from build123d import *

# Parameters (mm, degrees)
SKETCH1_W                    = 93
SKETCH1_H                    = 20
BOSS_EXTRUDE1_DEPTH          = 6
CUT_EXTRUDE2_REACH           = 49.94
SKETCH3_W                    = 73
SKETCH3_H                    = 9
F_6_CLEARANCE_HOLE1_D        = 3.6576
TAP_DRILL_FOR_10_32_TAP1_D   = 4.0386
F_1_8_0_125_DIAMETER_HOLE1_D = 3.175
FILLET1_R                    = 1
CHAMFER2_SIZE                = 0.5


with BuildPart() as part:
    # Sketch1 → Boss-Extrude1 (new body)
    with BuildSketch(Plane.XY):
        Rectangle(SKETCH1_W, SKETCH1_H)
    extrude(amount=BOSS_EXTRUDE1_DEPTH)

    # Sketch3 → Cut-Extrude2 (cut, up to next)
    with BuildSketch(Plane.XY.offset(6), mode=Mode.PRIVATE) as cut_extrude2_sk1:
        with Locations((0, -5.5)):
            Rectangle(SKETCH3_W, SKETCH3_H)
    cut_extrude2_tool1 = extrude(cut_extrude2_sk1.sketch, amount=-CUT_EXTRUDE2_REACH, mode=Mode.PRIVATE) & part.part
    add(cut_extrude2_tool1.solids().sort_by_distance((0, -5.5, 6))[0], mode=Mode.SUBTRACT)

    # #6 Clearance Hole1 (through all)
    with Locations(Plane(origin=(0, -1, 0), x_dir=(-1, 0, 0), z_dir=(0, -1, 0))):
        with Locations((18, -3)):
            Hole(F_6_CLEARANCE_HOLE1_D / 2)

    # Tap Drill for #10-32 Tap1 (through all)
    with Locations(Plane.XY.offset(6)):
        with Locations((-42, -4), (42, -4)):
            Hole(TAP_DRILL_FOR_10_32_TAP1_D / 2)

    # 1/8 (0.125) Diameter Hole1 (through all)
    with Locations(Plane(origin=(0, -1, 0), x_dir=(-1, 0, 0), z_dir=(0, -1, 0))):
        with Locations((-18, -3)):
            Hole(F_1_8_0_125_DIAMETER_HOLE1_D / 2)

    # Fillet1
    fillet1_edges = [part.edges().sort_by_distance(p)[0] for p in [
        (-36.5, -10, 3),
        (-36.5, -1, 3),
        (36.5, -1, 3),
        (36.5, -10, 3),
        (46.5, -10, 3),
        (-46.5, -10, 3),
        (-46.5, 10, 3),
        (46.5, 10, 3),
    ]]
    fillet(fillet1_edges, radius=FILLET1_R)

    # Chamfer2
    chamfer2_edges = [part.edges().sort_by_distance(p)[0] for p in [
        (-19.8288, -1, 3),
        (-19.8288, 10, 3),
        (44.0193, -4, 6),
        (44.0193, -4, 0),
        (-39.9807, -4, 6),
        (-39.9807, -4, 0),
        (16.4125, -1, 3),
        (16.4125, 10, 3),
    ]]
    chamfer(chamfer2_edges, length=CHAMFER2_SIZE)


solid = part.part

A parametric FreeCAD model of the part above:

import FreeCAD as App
import Part
import Sketcher
Q = App.Units.Quantity


def edges_at(feature, points):
    """Names of the edges that pass closest to the given points."""
    edges = feature.Shape.Edges
    near = lambda p: min(range(len(edges)), key=lambda i: edges[i].distToShape(Part.Vertex(*p))[0])
    return sorted({f"Edge{near(p) + 1}" for p in points})


def add_polygon(sketch, points):
    """Adds a closed chain of lines whose ends are joined by coincident constraints."""
    first, n = sketch.GeometryCount, len(points)
    for a, b in zip(points, points[1:] + points[:1]):
        sketch.addGeometry(Part.LineSegment(App.Vector(*a, 0), App.Vector(*b, 0)), False)
    for i in range(n):
        sketch.addConstraint(Sketcher.Constraint("Coincident", first + i, 2, first + (i + 1) % n, 1))

doc = App.newDocument("Part")
params = doc.addObject("Spreadsheet::Sheet", "Params")
for row, (alias, value) in enumerate([
    ("sketch1_width", "93 mm"),
    ("sketch1_height", "20 mm"),
    ("pad1_length", "6 mm"),
    ("sketch2_width", "73 mm"),
    ("sketch2_height", "9 mm"),
    ("hole_diameter", "3.6576 mm"),
    ("hole2_diameter", "4.0386 mm"),
    ("hole3_diameter", "3.175 mm"),
    ("fillet_radius", "1 mm"),
    ("chamfer_size", "0.5 mm"),
], start=1):
    params.set(f"A{row}", alias)
    params.set(f"B{row}", "=" + value)
    params.setAlias(f"B{row}", alias)

body = doc.addObject("PartDesign::Body", "Body")

sketch1 = body.newObject("Sketcher::SketchObject", "Sketch")
sketch1.AttachmentSupport = (doc.getObject("XY_Plane"), [""])
sketch1.MapMode = "FlatFace"
add_polygon(sketch1, [(-46.5, 10), (-46.5, -10), (46.5, -10), (46.5, 10)])
sketch1.addConstraint(Sketcher.Constraint("Vertical", 0))
sketch1.addConstraint(Sketcher.Constraint("Horizontal", 1))
sketch1.addConstraint(Sketcher.Constraint("Vertical", 2))
sketch1.addConstraint(Sketcher.Constraint("Horizontal", 3))
sketch1.addConstraint(Sketcher.Constraint("Symmetric", 0, 2, 2, 2, -1, 1))
sketch1.addConstraint(Sketcher.Constraint("DistanceX", 1, 1, 1, 2, Q("93 mm")))
sketch1.addConstraint(Sketcher.Constraint("DistanceY", 0, 2, 0, 1, Q("20 mm")))
sketch1.setExpression("Constraints[9]", "Params.sketch1_width")
sketch1.setExpression("Constraints[10]", "Params.sketch1_height")
pad1 = body.newObject("PartDesign::Pad", "Pad")
pad1.Profile = sketch1
pad1.setExpression("Length", "Params.pad1_length")

sketch2 = body.newObject("Sketcher::SketchObject", "Sketch001")
sketch2.AttachmentSupport = (doc.getObject("XY_Plane"), [""])
sketch2.MapMode = "FlatFace"
sketch2.AttachmentOffset = App.Placement(App.Vector(0, 0, 6), App.Rotation())
add_polygon(sketch2, [(-36.5, -1), (-36.5, -10), (36.5, -10), (36.5, -1)])
sketch2.addConstraint(Sketcher.Constraint("Vertical", 0))
sketch2.addConstraint(Sketcher.Constraint("Horizontal", 1))
sketch2.addConstraint(Sketcher.Constraint("Vertical", 2))
sketch2.addConstraint(Sketcher.Constraint("Horizontal", 3))
sketch2.addConstraint(Sketcher.Constraint("DistanceX", 1, 1, 1, 2, Q("73 mm")))
sketch2.addConstraint(Sketcher.Constraint("DistanceY", 0, 2, 0, 1, Q("9 mm")))
sketch2.addConstraint(Sketcher.Constraint("DistanceY", 0, 2, -1, 1, Q("10 mm")))
sketch2.addConstraint(Sketcher.Constraint("DistanceX", 0, 2, -1, 1, Q("36.5 mm")))
sketch2.setExpression("Constraints[8]", "Params.sketch2_width")
sketch2.setExpression("Constraints[9]", "Params.sketch2_height")
pocket1 = body.newObject("PartDesign::Pocket", "Pocket")
pocket1.Profile = sketch2
pocket1.Type = "UpToFirst"

sketch3 = body.newObject("Sketcher::SketchObject", "Sketch002")
sketch3.AttachmentSupport = (doc.getObject("XZ_Plane"), [""])
sketch3.MapMode = "FlatFace"
sketch3.AttachmentOffset = App.Placement(App.Vector(0, 0, 1), App.Rotation())
sketch3.addGeometry(Part.Circle(App.Vector(-18, 3, 0), App.Vector(0, 0, 1), 1.8288), False)
sketch3.addConstraint(Sketcher.Constraint("DistanceX", 0, 3, -1, 1, Q("18 mm")))
sketch3.addConstraint(Sketcher.Constraint("DistanceY", -1, 1, 0, 3, Q("3 mm")))
sketch3.addConstraint(Sketcher.Constraint("Diameter", 0, Q("3.6576 mm")))
doc.recompute()
hole = body.newObject("PartDesign::Hole", "Hole")
hole.Profile = sketch3
hole.ThreadType = "None"
hole.setExpression("Diameter", "Params.hole_diameter")
hole.DepthType = "ThroughAll"

sketch4 = body.newObject("Sketcher::SketchObject", "Sketch003")
sketch4.AttachmentSupport = (doc.getObject("XY_Plane"), [""])
sketch4.MapMode = "FlatFace"
sketch4.AttachmentOffset = App.Placement(App.Vector(0, 0, 6), App.Rotation())
sketch4.addGeometry(Part.Circle(App.Vector(-42, -4, 0), App.Vector(0, 0, 1), 2.0193), False)
sketch4.addGeometry(Part.Circle(App.Vector(42, -4, 0), App.Vector(0, 0, 1), 2.0193), False)
sketch4.addConstraint(Sketcher.Constraint("Equal", 0, 1))
sketch4.addConstraint(Sketcher.Constraint("Symmetric", 0, 3, 1, 3, -2))
sketch4.addConstraint(Sketcher.Constraint("DistanceX", 0, 3, -1, 1, Q("42 mm")))
sketch4.addConstraint(Sketcher.Constraint("DistanceY", 0, 3, -1, 1, Q("4 mm")))
sketch4.addConstraint(Sketcher.Constraint("Diameter", 0, Q("4.0386 mm")))
doc.recompute()
hole2 = body.newObject("PartDesign::Hole", "Hole001")
hole2.Profile = sketch4
hole2.ThreadType = "None"
hole2.setExpression("Diameter", "Params.hole2_diameter")
hole2.DepthType = "ThroughAll"

sketch5 = body.newObject("Sketcher::SketchObject", "Sketch004")
sketch5.AttachmentSupport = (doc.getObject("XZ_Plane"), [""])
sketch5.MapMode = "FlatFace"
sketch5.AttachmentOffset = App.Placement(App.Vector(0, 0, 1), App.Rotation())
sketch5.addGeometry(Part.Circle(App.Vector(18, 3, 0), App.Vector(0, 0, 1), 1.5875), False)
sketch5.addConstraint(Sketcher.Constraint("Diameter", 0, Q("3.175 mm")))
sketch5.addConstraint(Sketcher.Constraint("DistanceX", -1, 1, 0, 3, Q("18 mm")))
sketch5.addConstraint(Sketcher.Constraint("DistanceY", -1, 1, 0, 3, Q("3 mm")))
doc.recompute()
hole3 = body.newObject("PartDesign::Hole", "Hole002")
hole3.Profile = sketch5
hole3.ThreadType = "None"
hole3.setExpression("Diameter", "Params.hole3_diameter")
hole3.DepthType = "ThroughAll"
doc.recompute()

fillet = body.newObject("PartDesign::Fillet", "Fillet")
fillet.Base = (hole3, edges_at(hole3, [
    (-36.5, -10, 3),
    (-36.5, -1, 3),
    (36.5, -1, 3),
    (36.5, -10, 3),
    (46.5, -10, 3),
    (-46.5, -10, 3),
    (-46.5, 10, 3),
    (46.5, 10, 3),
]))
fillet.setExpression("Radius", "Params.fillet_radius")
doc.recompute()

chamfer = body.newObject("PartDesign::Chamfer", "Chamfer")
chamfer.Base = (fillet, edges_at(fillet, [
    (-19.829, -1, 3),
    (-19.829, 10, 3),
    (44.019, -4, 6),
    (44.019, -4, 0),
    (-39.981, -4, 6),
    (-39.981, -4, 0),
    (16.413, -1, 3),
    (16.413, 10, 3),
]))
chamfer.setExpression("Size", "Params.chamfer_size")

doc.recompute()
